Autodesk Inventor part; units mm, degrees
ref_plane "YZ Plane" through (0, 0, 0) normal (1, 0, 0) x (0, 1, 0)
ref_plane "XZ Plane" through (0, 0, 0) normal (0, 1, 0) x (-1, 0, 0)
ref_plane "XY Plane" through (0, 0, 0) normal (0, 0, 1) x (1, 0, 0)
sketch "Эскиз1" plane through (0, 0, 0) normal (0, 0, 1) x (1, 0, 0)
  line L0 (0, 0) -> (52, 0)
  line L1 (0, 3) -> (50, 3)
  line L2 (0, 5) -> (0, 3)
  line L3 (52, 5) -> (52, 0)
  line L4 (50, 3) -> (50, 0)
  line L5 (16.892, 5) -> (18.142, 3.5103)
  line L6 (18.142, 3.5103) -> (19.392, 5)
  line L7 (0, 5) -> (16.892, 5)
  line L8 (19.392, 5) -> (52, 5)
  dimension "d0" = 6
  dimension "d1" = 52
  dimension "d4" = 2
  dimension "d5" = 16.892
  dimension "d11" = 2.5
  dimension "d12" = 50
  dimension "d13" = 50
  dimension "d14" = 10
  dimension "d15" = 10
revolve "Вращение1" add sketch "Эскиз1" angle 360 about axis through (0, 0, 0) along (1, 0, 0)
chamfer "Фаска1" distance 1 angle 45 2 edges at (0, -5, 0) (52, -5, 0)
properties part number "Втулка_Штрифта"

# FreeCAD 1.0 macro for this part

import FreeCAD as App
import Part
import Sketcher
Q = App.Units.Quantity


def edges_at(feature, points):
    """Names of the edges that pass closest to the given points."""
    edges = feature.Shape.Edges
    near = lambda p: min(range(len(edges)), key=lambda i: edges[i].distToShape(Part.Vertex(*p))[0])
    return sorted({f"Edge{near(p) + 1}" for p in points})


def add_polygon(sketch, points):
    """Adds a closed chain of lines whose ends are joined by coincident constraints."""
    first, n = sketch.GeometryCount, len(points)
    for a, b in zip(points, points[1:] + points[:1]):
        sketch.addGeometry(Part.LineSegment(App.Vector(*a, 0), App.Vector(*b, 0)), False)
    for i in range(n):
        sketch.addConstraint(Sketcher.Constraint("Coincident", first + i, 2, first + (i + 1) % n, 1))

doc = App.newDocument("Part")
params = doc.addObject("Spreadsheet::Sheet", "Params")
for row, (alias, value) in enumerate([
    ("sketch1_width", "2 mm"),
    ("sketch1_width2", "50 mm"),
    ("sketch1_height", "3 mm"),
    ("revolution_angle", "360 deg"),
    ("chamfer_size", "1 mm"),
], start=1):
    params.set(f"A{row}", alias)
    params.set(f"B{row}", "=" + value)
    params.setAlias(f"B{row}", alias)

body = doc.addObject("PartDesign::Body", "Body")

sketch1 = body.newObject("Sketcher::SketchObject", "Sketch")
sketch1.AttachmentSupport = (doc.getObject("XY_Plane"), [""])
sketch1.MapMode = "FlatFace"
add_polygon(sketch1, [(50, 3), (50, 0), (52, 0), (52, 5), (19.392, 5), (18.142, 3.5103), (16.892, 5), (0, 5), (0, 3)])
sketch1.addConstraint(Sketcher.Constraint("Vertical", 0))
sketch1.addConstraint(Sketcher.Constraint("Horizontal", 1))
sketch1.addConstraint(Sketcher.Constraint("Vertical", 2))
sketch1.addConstraint(Sketcher.Constraint("Horizontal", 3))
sketch1.addConstraint(Sketcher.Constraint("Horizontal", 6))
sketch1.addConstraint(Sketcher.Constraint("Vertical", 7))
sketch1.addConstraint(Sketcher.Constraint("Horizontal", 8))
sketch1.addConstraint(Sketcher.Constraint("PointOnObject", 0, 2, -1))
sketch1.addConstraint(Sketcher.Constraint("PointOnObject", 6, 2, -2))
sketch1.addConstraint(Sketcher.Constraint("Horizontal", 3, 2, 5, 2))
sketch1.addConstraint(Sketcher.Constraint("Equal", 1, 7))
sketch1.addConstraint(Sketcher.Constraint("Equal", 4, 5))
sketch1.addConstraint(Sketcher.Constraint("DistanceX", 1, 1, 1, 2, Q("2 mm")))
sketch1.addConstraint(Sketcher.Constraint("DistanceX", 8, 1, 8, 2, Q("50 mm")))
sketch1.addConstraint(Sketcher.Constraint("DistanceX", 5, 2, 3, 2, Q("2.5 mm")))
sketch1.addConstraint(Sketcher.Constraint("DistanceX", 6, 2, 6, 1, Q("16.892 mm")))
sketch1.addConstraint(Sketcher.Constraint("DistanceY", 0, 2, 0, 1, Q("3 mm")))
sketch1.addConstraint(Sketcher.Constraint("Angle", 4, Q("-129.9998 deg")))
sketch1.setExpression("Constraints[21]", "Params.sketch1_width")
sketch1.setExpression("Constraints[22]", "Params.sketch1_width2")
sketch1.setExpression("Constraints[25]", "Params.sketch1_height")
revolution = body.newObject("PartDesign::Revolution", "Revolution")
revolution.Profile = sketch1
revolution.ReferenceAxis = (sketch1, ["H_Axis"])
revolution.setExpression("Angle", "Params.revolution_angle")
doc.recompute()

chamfer = body.newObject("PartDesign::Chamfer", "Chamfer")
chamfer.Base = (revolution, edges_at(revolution, [(0, -5, 0), (52, -5, 0)]))
chamfer.setExpression("Size", "Params.chamfer_size")

doc.recompute()
